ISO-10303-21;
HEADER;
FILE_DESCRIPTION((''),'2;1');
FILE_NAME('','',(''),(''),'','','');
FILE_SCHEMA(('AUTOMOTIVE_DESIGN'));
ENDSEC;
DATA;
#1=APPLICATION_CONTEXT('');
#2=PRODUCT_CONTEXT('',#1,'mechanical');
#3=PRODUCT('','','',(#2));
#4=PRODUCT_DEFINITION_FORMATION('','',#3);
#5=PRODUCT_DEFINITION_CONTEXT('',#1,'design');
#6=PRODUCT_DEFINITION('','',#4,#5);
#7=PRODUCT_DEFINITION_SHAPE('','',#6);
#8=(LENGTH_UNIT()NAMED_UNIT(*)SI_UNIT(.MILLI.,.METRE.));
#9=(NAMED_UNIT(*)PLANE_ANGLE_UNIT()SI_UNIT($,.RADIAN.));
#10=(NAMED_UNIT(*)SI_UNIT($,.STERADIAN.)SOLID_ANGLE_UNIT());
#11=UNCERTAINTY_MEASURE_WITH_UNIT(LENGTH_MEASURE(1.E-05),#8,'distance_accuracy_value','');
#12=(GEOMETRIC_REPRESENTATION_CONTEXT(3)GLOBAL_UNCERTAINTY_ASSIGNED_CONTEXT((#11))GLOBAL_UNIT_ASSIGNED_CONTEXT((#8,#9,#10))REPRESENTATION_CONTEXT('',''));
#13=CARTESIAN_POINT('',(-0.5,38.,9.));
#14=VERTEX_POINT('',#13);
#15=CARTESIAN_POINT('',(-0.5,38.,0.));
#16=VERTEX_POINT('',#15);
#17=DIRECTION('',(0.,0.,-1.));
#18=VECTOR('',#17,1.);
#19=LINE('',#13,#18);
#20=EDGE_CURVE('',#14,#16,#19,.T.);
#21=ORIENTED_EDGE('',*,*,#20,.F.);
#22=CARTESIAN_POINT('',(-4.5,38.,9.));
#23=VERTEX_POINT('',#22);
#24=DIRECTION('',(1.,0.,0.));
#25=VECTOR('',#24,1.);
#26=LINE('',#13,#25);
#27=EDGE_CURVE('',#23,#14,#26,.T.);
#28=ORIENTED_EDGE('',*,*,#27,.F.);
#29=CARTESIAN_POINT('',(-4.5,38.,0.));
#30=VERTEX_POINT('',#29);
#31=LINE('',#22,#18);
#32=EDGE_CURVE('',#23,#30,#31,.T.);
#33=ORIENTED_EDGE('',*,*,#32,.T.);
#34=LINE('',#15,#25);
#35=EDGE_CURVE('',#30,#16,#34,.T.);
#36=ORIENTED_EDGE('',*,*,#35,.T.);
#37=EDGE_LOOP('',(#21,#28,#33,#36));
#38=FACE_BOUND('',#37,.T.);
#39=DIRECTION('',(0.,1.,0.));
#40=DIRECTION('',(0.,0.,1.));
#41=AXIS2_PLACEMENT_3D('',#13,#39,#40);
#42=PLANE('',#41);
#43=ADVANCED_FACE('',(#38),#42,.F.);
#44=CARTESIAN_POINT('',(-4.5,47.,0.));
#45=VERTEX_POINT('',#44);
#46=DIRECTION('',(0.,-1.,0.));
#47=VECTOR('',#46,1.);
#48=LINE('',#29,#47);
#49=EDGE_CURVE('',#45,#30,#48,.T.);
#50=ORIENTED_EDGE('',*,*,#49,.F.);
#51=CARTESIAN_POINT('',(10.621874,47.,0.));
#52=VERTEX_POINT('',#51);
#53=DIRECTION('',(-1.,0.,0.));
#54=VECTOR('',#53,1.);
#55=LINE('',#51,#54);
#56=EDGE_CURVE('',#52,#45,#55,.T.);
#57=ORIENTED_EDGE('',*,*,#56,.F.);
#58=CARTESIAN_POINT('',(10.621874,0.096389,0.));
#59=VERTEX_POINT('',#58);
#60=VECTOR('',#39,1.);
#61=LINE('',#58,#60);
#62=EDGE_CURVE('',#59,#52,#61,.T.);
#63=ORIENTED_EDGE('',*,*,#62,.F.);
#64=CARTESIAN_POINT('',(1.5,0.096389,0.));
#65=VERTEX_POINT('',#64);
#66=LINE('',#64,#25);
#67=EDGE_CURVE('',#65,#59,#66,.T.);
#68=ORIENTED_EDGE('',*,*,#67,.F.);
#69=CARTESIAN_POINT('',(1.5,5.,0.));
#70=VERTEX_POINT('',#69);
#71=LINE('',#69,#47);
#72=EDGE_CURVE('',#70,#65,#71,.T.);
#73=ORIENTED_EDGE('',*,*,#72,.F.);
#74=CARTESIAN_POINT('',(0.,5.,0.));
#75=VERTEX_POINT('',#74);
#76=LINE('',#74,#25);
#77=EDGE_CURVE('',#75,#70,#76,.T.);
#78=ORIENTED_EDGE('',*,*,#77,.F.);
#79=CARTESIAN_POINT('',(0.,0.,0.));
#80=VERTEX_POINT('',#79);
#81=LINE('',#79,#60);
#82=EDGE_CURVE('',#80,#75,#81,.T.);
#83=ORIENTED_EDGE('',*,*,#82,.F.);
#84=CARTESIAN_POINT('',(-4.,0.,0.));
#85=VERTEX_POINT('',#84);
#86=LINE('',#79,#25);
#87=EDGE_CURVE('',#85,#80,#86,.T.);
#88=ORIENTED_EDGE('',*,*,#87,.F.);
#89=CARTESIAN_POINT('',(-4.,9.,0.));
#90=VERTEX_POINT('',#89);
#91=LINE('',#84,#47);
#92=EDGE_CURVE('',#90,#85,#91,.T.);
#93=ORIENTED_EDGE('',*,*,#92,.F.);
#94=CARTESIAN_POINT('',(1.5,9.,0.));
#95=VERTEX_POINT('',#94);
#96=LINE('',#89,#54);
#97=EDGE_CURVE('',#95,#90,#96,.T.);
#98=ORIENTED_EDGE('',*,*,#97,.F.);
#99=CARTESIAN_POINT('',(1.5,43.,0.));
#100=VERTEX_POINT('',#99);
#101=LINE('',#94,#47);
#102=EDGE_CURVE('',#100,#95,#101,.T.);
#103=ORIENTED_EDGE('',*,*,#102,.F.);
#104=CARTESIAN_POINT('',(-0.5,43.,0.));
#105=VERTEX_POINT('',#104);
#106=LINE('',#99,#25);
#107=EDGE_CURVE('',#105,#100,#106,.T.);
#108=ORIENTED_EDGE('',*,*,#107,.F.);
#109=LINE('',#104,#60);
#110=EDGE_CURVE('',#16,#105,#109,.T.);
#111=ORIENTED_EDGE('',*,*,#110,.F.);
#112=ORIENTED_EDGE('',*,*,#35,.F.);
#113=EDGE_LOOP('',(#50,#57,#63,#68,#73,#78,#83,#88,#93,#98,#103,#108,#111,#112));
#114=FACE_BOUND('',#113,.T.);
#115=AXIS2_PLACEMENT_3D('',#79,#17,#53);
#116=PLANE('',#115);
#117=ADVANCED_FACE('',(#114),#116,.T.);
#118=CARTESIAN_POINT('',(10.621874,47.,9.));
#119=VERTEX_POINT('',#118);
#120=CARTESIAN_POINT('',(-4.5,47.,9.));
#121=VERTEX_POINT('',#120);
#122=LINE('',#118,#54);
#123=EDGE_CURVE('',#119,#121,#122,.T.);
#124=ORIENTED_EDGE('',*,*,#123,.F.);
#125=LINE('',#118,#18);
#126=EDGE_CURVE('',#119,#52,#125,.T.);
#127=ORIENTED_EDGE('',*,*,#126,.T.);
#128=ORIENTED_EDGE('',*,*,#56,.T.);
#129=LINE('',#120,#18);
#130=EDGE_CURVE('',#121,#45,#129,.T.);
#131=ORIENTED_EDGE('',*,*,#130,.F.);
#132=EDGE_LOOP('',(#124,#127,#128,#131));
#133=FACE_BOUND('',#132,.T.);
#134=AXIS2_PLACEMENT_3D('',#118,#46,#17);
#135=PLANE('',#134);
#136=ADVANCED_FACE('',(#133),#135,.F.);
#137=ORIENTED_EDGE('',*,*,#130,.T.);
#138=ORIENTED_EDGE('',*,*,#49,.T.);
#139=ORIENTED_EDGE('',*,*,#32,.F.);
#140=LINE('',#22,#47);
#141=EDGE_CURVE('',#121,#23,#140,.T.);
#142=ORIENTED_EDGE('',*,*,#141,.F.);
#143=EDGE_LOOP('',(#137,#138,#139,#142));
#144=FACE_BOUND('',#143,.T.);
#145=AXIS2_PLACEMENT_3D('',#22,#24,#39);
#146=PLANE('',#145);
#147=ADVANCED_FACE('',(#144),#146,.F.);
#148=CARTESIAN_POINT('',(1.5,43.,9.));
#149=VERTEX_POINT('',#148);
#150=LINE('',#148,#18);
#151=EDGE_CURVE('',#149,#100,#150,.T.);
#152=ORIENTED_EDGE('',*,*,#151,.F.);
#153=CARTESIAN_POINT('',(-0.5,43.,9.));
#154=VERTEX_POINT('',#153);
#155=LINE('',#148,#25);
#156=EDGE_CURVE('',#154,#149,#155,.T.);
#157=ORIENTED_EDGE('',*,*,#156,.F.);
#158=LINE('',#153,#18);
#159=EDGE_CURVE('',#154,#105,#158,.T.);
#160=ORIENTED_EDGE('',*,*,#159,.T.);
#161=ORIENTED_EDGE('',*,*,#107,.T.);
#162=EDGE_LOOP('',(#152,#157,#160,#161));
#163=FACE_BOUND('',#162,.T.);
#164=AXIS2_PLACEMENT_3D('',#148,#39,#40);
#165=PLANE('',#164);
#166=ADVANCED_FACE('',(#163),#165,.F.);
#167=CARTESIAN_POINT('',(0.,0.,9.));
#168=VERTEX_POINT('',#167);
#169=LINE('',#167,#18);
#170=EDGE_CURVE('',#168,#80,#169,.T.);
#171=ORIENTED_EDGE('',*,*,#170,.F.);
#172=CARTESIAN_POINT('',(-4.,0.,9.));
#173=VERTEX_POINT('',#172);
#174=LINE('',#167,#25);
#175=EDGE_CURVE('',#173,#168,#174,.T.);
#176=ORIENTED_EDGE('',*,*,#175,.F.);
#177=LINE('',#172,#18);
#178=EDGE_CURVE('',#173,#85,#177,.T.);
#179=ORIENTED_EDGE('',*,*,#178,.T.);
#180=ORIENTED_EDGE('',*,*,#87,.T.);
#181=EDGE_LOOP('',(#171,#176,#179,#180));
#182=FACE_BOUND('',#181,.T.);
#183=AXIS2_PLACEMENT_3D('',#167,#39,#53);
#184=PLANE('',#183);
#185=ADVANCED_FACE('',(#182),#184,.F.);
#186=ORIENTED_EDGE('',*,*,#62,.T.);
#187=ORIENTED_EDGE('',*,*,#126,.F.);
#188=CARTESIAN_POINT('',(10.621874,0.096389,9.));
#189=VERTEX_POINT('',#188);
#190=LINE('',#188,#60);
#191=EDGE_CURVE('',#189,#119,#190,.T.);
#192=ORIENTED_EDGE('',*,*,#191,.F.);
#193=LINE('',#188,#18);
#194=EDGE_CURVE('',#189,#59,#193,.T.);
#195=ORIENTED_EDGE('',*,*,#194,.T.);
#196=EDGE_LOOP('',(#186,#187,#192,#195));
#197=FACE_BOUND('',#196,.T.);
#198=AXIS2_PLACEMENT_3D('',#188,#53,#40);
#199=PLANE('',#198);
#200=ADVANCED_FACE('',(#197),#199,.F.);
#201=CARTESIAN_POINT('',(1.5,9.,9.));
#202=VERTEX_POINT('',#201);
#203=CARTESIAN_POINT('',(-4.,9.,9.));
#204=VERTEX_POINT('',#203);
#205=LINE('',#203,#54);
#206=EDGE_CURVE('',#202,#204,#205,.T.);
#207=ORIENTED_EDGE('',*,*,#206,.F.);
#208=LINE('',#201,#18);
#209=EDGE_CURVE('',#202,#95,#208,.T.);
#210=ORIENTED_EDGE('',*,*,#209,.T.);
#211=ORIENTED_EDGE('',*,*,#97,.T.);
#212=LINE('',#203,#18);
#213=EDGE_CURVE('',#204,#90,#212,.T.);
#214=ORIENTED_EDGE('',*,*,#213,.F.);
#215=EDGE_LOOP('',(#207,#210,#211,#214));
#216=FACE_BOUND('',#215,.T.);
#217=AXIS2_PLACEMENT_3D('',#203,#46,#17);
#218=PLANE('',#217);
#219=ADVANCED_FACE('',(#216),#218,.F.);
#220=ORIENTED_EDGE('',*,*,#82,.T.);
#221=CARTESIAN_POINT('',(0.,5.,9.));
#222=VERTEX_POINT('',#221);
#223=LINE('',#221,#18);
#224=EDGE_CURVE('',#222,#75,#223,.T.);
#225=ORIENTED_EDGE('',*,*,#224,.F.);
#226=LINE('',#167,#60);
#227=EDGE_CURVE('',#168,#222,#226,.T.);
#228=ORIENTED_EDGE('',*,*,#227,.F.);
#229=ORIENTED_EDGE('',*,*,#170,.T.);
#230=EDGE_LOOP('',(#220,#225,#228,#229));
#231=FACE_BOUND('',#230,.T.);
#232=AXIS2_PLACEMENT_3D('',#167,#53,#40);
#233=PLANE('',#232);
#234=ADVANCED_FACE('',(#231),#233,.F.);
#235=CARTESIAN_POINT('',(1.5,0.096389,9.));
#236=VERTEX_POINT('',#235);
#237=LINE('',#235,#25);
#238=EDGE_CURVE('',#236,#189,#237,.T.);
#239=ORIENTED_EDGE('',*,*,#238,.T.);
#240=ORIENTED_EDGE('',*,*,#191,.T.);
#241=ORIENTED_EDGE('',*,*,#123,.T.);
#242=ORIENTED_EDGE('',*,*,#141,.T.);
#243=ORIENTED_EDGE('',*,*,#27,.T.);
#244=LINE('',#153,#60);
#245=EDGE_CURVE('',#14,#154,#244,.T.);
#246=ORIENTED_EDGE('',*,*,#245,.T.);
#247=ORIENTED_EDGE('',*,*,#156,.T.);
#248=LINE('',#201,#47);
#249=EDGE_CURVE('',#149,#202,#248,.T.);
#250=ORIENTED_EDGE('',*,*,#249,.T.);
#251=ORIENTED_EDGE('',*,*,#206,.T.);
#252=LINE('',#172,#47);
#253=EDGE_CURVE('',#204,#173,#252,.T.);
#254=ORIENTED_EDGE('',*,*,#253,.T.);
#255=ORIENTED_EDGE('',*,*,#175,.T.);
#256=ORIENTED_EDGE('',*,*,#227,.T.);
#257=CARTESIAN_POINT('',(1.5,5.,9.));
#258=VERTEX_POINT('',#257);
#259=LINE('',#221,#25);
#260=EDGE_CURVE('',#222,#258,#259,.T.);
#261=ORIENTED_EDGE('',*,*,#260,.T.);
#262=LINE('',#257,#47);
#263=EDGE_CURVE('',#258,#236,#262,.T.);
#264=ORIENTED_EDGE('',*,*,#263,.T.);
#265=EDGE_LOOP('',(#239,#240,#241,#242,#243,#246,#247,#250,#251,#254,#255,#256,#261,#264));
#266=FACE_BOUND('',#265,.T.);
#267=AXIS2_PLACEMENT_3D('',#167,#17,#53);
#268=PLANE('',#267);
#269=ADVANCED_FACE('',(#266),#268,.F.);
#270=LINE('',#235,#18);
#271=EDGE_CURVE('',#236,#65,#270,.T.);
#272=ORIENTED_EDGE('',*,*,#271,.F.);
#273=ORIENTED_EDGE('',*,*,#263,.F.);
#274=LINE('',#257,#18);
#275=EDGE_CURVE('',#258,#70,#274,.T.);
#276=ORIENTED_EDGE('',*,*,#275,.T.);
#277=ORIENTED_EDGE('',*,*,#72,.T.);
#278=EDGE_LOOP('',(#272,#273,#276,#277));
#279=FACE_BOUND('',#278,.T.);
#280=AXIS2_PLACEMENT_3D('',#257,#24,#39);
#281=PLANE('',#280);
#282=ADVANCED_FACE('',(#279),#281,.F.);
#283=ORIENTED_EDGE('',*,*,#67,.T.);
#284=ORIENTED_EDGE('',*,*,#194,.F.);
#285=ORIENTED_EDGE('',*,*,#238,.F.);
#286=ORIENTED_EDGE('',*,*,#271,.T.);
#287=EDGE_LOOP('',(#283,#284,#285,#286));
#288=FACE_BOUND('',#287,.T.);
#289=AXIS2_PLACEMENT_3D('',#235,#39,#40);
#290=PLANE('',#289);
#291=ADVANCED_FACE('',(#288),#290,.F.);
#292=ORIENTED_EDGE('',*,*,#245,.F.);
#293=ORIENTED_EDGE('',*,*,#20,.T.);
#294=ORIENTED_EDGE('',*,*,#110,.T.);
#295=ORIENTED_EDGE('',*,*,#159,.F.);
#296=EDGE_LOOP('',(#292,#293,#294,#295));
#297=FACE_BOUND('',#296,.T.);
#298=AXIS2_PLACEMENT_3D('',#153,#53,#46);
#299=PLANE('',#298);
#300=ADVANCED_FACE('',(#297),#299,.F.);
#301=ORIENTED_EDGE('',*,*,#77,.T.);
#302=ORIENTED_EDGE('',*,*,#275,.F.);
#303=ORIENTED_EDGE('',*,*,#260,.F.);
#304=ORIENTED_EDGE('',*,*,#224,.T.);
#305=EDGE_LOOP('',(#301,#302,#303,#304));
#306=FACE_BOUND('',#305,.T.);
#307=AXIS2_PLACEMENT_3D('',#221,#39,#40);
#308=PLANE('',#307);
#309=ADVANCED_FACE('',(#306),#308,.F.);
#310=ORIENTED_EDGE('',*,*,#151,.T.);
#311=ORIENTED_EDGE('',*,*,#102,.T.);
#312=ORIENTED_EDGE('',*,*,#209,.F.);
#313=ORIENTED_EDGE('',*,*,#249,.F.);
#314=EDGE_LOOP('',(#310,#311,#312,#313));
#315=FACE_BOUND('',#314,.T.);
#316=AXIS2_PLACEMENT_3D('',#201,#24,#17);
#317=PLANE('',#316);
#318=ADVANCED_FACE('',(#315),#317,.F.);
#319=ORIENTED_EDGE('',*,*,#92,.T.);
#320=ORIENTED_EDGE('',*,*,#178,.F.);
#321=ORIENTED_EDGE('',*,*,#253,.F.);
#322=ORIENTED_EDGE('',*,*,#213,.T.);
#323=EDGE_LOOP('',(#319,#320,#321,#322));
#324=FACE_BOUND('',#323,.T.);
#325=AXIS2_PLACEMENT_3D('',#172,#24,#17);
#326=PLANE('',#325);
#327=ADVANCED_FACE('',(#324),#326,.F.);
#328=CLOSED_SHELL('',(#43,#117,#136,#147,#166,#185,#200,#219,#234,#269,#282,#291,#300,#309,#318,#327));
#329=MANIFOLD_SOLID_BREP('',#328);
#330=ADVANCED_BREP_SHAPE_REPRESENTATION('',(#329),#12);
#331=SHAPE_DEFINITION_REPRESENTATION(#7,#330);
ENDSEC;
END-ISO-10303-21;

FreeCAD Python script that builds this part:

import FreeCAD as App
import Part
import Sketcher
Q = App.Units.Quantity


def add_polygon(sketch, points):
    """Adds a closed chain of lines whose ends are joined by coincident constraints."""
    first, n = sketch.GeometryCount, len(points)
    for a, b in zip(points, points[1:] + points[:1]):
        sketch.addGeometry(Part.LineSegment(App.Vector(*a, 0), App.Vector(*b, 0)), False)
    for i in range(n):
        sketch.addConstraint(Sketcher.Constraint("Coincident", first + i, 2, first + (i + 1) % n, 1))

doc = App.newDocument("Part")
body = doc.addObject("PartDesign::Body", "Body")

# Sketch on XY plane
sketch1 = body.newObject("Sketcher::SketchObject", "Sketch")
sketch1.AttachmentSupport = (doc.getObject("XY_Plane"), [""])
sketch1.MapMode = "FlatFace"
add_polygon(sketch1, [(0, 0), (0, 5), (1.5, 5), (1.5, 0.1), (10.6, 0.1), (10.6, 47), (-4.5, 47), (-4.5, 38), (-0.5, 38), (-0.5, 43), (1.5, 43), (1.5, 9), (-4, 9), (-4, 0)])  # lines 0-13
sketch1.addConstraint([
    Sketcher.Constraint("Vertical", 0),
    Sketcher.Constraint("Horizontal", 1),
    Sketcher.Constraint("Vertical", 2),
    Sketcher.Constraint("Horizontal", 3),
    Sketcher.Constraint("Vertical", 4),
    Sketcher.Constraint("Horizontal", 5),
    Sketcher.Constraint("Vertical", 6),
    Sketcher.Constraint("Horizontal", 7),
    Sketcher.Constraint("Vertical", 8),
    Sketcher.Constraint("Horizontal", 9),
    Sketcher.Constraint("Vertical", 10),
    Sketcher.Constraint("Horizontal", 11),
    Sketcher.Constraint("Vertical", 12),
    Sketcher.Constraint("Horizontal", 13),
    Sketcher.Constraint("Coincident", 13, 2, -1, 1),
    Sketcher.Constraint("Vertical", 2, 2, 9, 2),
    Sketcher.Constraint("Equal", 7, 13),
    Sketcher.Constraint("Equal", 0, 8),
    Sketcher.Constraint("Equal", 6, 12),
    Sketcher.Constraint("DistanceX", 7, 1, 7, 2, Q("4 mm")),
    Sketcher.Constraint("DistanceX", 9, 1, 9, 2, Q("2 mm")),
    Sketcher.Constraint("DistanceY", 0, 1, 0, 2, Q("5 mm")),
    Sketcher.Constraint("DistanceY", 6, 2, 6, 1, Q("9 mm")),
    Sketcher.Constraint("DistanceY", 10, 2, 10, 1, Q("34 mm")),
    Sketcher.Constraint("DistanceX", 1, 1, 1, 2, Q("1.5 mm")),
    Sketcher.Constraint("DistanceY", 2, 2, 2, 1, Q("4.903611 mm")),
    Sketcher.Constraint("DistanceX", 3, 1, 3, 2, Q("9.121874 mm")),
])
pad1 = body.newObject("PartDesign::Pad", "Pad")
pad1.Profile = sketch1
pad1.Length = 9

doc.recompute()
